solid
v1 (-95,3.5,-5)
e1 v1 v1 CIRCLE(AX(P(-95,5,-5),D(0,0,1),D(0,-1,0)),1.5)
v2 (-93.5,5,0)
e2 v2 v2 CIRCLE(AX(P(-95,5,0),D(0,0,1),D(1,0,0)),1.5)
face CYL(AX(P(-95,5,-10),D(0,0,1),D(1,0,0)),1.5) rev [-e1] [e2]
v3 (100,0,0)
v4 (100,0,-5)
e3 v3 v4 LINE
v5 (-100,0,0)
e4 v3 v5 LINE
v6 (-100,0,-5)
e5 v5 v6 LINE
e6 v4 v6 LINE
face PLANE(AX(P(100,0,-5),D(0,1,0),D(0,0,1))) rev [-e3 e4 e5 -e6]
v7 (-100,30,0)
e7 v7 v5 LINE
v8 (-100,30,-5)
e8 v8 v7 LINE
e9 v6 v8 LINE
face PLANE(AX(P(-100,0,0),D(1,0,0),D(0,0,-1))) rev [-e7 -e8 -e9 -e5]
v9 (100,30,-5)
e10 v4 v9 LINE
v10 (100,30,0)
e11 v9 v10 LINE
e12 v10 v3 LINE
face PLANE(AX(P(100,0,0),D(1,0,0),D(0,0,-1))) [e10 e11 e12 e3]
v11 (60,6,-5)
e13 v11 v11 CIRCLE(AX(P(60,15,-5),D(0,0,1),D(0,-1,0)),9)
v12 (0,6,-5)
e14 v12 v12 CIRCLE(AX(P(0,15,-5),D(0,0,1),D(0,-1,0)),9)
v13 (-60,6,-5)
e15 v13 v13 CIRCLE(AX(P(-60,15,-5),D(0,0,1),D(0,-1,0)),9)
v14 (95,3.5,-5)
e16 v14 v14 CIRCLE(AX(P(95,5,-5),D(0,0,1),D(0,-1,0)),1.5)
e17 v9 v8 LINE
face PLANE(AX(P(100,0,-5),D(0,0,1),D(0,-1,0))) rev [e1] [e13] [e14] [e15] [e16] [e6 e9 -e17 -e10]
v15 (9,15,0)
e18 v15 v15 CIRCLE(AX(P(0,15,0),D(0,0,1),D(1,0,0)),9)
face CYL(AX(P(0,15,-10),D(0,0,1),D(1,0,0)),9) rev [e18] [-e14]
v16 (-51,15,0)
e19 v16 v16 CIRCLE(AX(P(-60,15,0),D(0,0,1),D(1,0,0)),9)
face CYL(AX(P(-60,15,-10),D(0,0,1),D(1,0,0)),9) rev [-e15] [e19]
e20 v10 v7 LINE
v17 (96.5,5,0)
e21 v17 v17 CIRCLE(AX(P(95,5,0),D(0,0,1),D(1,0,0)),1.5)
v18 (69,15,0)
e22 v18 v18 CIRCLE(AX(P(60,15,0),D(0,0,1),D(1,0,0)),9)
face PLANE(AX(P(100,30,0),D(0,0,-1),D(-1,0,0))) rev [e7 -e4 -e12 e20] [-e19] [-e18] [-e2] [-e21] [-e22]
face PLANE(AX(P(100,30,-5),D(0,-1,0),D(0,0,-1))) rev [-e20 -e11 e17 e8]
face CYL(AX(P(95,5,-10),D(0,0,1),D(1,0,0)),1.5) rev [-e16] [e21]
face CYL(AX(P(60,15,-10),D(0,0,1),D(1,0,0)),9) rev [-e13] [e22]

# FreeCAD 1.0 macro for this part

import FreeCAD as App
import Part
import Sketcher

V = App.Vector
Q = App.Units.Quantity

doc = App.newDocument("Part")
body = doc.addObject("PartDesign::Body", "Body")

sketch1 = doc.addObject("Sketcher::SketchObject", "Sketch")
body.addObject(sketch1)
sketch1.AttachmentSupport = (doc.YZ_Plane, [""])
sketch1.MapMode = "FlatFace"
sketch1.addGeometry(Part.LineSegment(V(30, 0, 0), V(0, 0, 0)), False)
sketch1.addGeometry(Part.LineSegment(V(0, 0, 0), V(0, -5, 0)), False)
sketch1.addGeometry(Part.LineSegment(V(0, -5, 0), V(30, -5, 0)), False)
sketch1.addGeometry(Part.LineSegment(V(30, -5, 0), V(30, 0, 0)), False)
sketch1.addConstraint(Sketcher.Constraint("Coincident", 0, 2, 1, 1))
sketch1.addConstraint(Sketcher.Constraint("Coincident", 1, 2, 2, 1))
sketch1.addConstraint(Sketcher.Constraint("Coincident", 2, 2, 3, 1))
sketch1.addConstraint(Sketcher.Constraint("Coincident", 3, 2, 0, 1))
sketch1.addConstraint(Sketcher.Constraint("Horizontal", 0))
sketch1.addConstraint(Sketcher.Constraint("Vertical", 1))
sketch1.addConstraint(Sketcher.Constraint("Horizontal", 2))
sketch1.addConstraint(Sketcher.Constraint("Vertical", 3))
sketch1.addConstraint(Sketcher.Constraint("Coincident", 0, 2, -1, 1))
sketch1.addConstraint(Sketcher.Constraint("DistanceX", 0, 2, 0, 1, Q("30 mm")))
sketch1.addConstraint(Sketcher.Constraint("DistanceY", 1, 2, 1, 1, Q("5 mm")))
pad1 = doc.addObject("PartDesign::Pad", "Pad")
body.addObject(pad1)
pad1.Profile = sketch1
pad1.Length = 200
pad1.Midplane = True

sketch2 = doc.addObject("Sketcher::SketchObject", "Sketch001")
body.addObject(sketch2)
sketch2.AttachmentSupport = (doc.XY_Plane, [""])
sketch2.MapMode = "FlatFace"
sketch2.addGeometry(Part.Circle(V(0, 15, 0), V(0, 0, 1), 9), False)
sketch2.addGeometry(Part.Circle(V(60, 15, 0), V(0, 0, 1), 9), False)
sketch2.addGeometry(Part.Circle(V(-60, 15, 0), V(0, 0, 1), 9), False)
sketch2.addGeometry(Part.Circle(V(-95, 5, 0), V(0, 0, 1), 1.5), False)
sketch2.addGeometry(Part.Circle(V(95, 5, 0), V(0, 0, 1), 1.5), False)
sketch2.addConstraint(Sketcher.Constraint("Equal", 0, 1))
sketch2.addConstraint(Sketcher.Constraint("Equal", 1, 2))
sketch2.addConstraint(Sketcher.Constraint("Equal", 3, 4))
sketch2.addConstraint(Sketcher.Constraint("Symmetric", 1, 3, 2, 3, -2))
sketch2.addConstraint(Sketcher.Constraint("Symmetric", 3, 3, 4, 3, -2))
sketch2.addConstraint(Sketcher.Constraint("PointOnObject", 0, 3, -2))
sketch2.addConstraint(Sketcher.Constraint("Horizontal", 0, 3, 1, 3))
sketch2.addConstraint(Sketcher.Constraint("Diameter", 0, Q("18 mm")))
sketch2.addConstraint(Sketcher.Constraint("Diameter", 3, Q("3 mm")))
sketch2.addConstraint(Sketcher.Constraint("DistanceY", -1, 1, 0, 3, Q("15 mm")))
sketch2.addConstraint(Sketcher.Constraint("DistanceX", -1, 1, 1, 3, Q("60 mm")))
sketch2.addConstraint(Sketcher.Constraint("DistanceX", 3, 3, -1, 1, Q("95 mm")))
sketch2.addConstraint(Sketcher.Constraint("DistanceY", -1, 1, 3, 3, Q("5 mm")))
pocket1 = doc.addObject("PartDesign::Pocket", "Pocket")
body.addObject(pocket1)
pocket1.Profile = sketch2
pocket1.Length = 10

doc.recompute()
